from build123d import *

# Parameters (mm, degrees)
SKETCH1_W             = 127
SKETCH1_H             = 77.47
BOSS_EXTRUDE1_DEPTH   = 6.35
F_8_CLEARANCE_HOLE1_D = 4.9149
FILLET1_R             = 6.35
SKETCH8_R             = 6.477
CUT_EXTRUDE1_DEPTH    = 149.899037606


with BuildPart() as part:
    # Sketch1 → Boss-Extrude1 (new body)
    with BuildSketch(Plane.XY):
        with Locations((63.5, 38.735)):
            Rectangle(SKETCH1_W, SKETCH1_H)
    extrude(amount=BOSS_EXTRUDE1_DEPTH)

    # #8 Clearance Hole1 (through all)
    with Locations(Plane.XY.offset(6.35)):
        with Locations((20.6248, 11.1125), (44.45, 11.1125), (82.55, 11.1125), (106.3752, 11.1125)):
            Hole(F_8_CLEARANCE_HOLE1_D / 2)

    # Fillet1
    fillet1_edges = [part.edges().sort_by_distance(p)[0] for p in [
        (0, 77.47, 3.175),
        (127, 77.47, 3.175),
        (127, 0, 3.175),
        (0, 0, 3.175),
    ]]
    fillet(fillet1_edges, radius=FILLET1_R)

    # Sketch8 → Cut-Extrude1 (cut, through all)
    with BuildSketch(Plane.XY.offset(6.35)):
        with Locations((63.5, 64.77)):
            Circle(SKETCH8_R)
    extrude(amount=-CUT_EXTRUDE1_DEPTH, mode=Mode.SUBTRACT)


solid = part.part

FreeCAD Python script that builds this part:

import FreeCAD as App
import Part
import Sketcher

V = App.Vector
Q = App.Units.Quantity


def edges_at(feature, points):
    """Names of the edges that pass closest to the given points."""
    edges = feature.Shape.Edges
    near = lambda p: min(range(len(edges)), key=lambda i: edges[i].distToShape(Part.Vertex(*p))[0])
    return sorted({f"Edge{near(p) + 1}" for p in points})

doc = App.newDocument("Part")
body = doc.addObject("PartDesign::Body", "Body")

# Sketch on XY plane
sketch1 = doc.addObject("Sketcher::SketchObject", "Sketch")
body.addObject(sketch1)
sketch1.AttachmentSupport = (doc.XY_Plane, [""])
sketch1.MapMode = "FlatFace"
sketch1.addGeometry(Part.LineSegment(V(0, 77, 0), V(0, 0, 0)), False)
sketch1.addGeometry(Part.LineSegment(V(0, 0, 0), V(127, 0, 0)), False)
sketch1.addGeometry(Part.LineSegment(V(127, 0, 0), V(127, 77, 0)), False)
sketch1.addGeometry(Part.LineSegment(V(127, 77, 0), V(0, 77, 0)), False)
sketch1.addConstraint(Sketcher.Constraint("Coincident", 0, 2, 1, 1))
sketch1.addConstraint(Sketcher.Constraint("Coincident", 1, 2, 2, 1))
sketch1.addConstraint(Sketcher.Constraint("Coincident", 2, 2, 3, 1))
sketch1.addConstraint(Sketcher.Constraint("Coincident", 3, 2, 0, 1))
sketch1.addConstraint(Sketcher.Constraint("Vertical", 0))
sketch1.addConstraint(Sketcher.Constraint("Horizontal", 1))
sketch1.addConstraint(Sketcher.Constraint("Vertical", 2))
sketch1.addConstraint(Sketcher.Constraint("Horizontal", 3))
sketch1.addConstraint(Sketcher.Constraint("Coincident", 0, 2, -1, 1))
sketch1.addConstraint(Sketcher.Constraint("DistanceX", 1, 1, 1, 2, Q("5 in")))
sketch1.addConstraint(Sketcher.Constraint("DistanceY", 0, 2, 0, 1, Q("3.05 in")))
pad1 = doc.addObject("PartDesign::Pad", "Pad")
body.addObject(pad1)
pad1.Profile = sketch1
pad1.Length = Q("0.25 in")

# Sketch on XY plane
sketch2 = doc.addObject("Sketcher::SketchObject", "Sketch001")
body.addObject(sketch2)
sketch2.AttachmentSupport = (doc.XY_Plane, [""])
sketch2.MapMode = "FlatFace"
sketch2.AttachmentOffset = App.Placement(V(0, 0, 0.25 * 25.4), App.Rotation())
sketch2.addGeometry(Part.Circle(V(20.6, 11.1, 0), V(0, 0, 1), 2.5), False)
sketch2.addGeometry(Part.Circle(V(44.5, 11.1, 0), V(0, 0, 1), 2.5), False)
sketch2.addGeometry(Part.Circle(V(82.5, 11.1, 0), V(0, 0, 1), 2.5), False)
sketch2.addGeometry(Part.Circle(V(106.4, 11.1, 0), V(0, 0, 1), 2.5), False)
sketch2.addConstraint(Sketcher.Constraint("Equal", 0, 1))
sketch2.addConstraint(Sketcher.Constraint("Equal", 1, 2))
sketch2.addConstraint(Sketcher.Constraint("Equal", 2, 3))
sketch2.addConstraint(Sketcher.Constraint("Horizontal", 0, 3, 1, 3))
sketch2.addConstraint(Sketcher.Constraint("Horizontal", 1, 3, 2, 3))
sketch2.addConstraint(Sketcher.Constraint("Horizontal", 2, 3, 3, 3))
sketch2.addConstraint(Sketcher.Constraint("Diameter", 0, Q("0.1935 in")))
sketch2.addConstraint(Sketcher.Constraint("DistanceX", 1, 3, 2, 3, Q("1.5 in")))
sketch2.addConstraint(Sketcher.Constraint("DistanceX", -1, 1, 1, 3, Q("1.75 in")))
sketch2.addConstraint(Sketcher.Constraint("DistanceX", -1, 1, 0, 3, Q("0.812 in")))
sketch2.addConstraint(Sketcher.Constraint("DistanceY", -1, 1, 0, 3, Q("0.4375 in")))
sketch2.addConstraint(Sketcher.Constraint("DistanceX", -1, 1, 3, 3, Q("4.188 in")))
doc.recompute()
hole = doc.addObject("PartDesign::Hole", "Hole")
body.addObject(hole)
hole.Profile = sketch2
hole.ThreadType = "None"
hole.Diameter = Q("0.1935 in")
hole.DepthType = "ThroughAll"
doc.recompute()

fillet = doc.addObject("PartDesign::Fillet", "Fillet")
body.addObject(fillet)
fillet.Base = (hole, edges_at(hole, [
    (0, 77.47, 3.175),
    (127, 77.47, 3.175),
    (127, 0, 3.175),
    (0, 0, 3.175),
]))
fillet.Radius = Q("0.25 in")

# Sketch on XY plane
sketch3 = doc.addObject("Sketcher::SketchObject", "Sketch002")
body.addObject(sketch3)
sketch3.AttachmentSupport = (doc.XY_Plane, [""])
sketch3.MapMode = "FlatFace"
sketch3.AttachmentOffset = App.Placement(V(0, 0, 0.25 * 25.4), App.Rotation())
sketch3.addGeometry(Part.Circle(V(64, 65, 0), V(0, 0, 1), 6), False)
sketch3.addConstraint(Sketcher.Constraint("Diameter", 0, Q("0.51 in")))
sketch3.addConstraint(Sketcher.Constraint("DistanceX", -1, 1, 0, 3, Q("2.5 in")))
sketch3.addConstraint(Sketcher.Constraint("DistanceY", -1, 1, 0, 3, Q("2.55 in")))
pocket1 = doc.addObject("PartDesign::Pocket", "Pocket")
body.addObject(pocket1)
pocket1.Profile = sketch3
pocket1.Type = "ThroughAll"

doc.recompute()
